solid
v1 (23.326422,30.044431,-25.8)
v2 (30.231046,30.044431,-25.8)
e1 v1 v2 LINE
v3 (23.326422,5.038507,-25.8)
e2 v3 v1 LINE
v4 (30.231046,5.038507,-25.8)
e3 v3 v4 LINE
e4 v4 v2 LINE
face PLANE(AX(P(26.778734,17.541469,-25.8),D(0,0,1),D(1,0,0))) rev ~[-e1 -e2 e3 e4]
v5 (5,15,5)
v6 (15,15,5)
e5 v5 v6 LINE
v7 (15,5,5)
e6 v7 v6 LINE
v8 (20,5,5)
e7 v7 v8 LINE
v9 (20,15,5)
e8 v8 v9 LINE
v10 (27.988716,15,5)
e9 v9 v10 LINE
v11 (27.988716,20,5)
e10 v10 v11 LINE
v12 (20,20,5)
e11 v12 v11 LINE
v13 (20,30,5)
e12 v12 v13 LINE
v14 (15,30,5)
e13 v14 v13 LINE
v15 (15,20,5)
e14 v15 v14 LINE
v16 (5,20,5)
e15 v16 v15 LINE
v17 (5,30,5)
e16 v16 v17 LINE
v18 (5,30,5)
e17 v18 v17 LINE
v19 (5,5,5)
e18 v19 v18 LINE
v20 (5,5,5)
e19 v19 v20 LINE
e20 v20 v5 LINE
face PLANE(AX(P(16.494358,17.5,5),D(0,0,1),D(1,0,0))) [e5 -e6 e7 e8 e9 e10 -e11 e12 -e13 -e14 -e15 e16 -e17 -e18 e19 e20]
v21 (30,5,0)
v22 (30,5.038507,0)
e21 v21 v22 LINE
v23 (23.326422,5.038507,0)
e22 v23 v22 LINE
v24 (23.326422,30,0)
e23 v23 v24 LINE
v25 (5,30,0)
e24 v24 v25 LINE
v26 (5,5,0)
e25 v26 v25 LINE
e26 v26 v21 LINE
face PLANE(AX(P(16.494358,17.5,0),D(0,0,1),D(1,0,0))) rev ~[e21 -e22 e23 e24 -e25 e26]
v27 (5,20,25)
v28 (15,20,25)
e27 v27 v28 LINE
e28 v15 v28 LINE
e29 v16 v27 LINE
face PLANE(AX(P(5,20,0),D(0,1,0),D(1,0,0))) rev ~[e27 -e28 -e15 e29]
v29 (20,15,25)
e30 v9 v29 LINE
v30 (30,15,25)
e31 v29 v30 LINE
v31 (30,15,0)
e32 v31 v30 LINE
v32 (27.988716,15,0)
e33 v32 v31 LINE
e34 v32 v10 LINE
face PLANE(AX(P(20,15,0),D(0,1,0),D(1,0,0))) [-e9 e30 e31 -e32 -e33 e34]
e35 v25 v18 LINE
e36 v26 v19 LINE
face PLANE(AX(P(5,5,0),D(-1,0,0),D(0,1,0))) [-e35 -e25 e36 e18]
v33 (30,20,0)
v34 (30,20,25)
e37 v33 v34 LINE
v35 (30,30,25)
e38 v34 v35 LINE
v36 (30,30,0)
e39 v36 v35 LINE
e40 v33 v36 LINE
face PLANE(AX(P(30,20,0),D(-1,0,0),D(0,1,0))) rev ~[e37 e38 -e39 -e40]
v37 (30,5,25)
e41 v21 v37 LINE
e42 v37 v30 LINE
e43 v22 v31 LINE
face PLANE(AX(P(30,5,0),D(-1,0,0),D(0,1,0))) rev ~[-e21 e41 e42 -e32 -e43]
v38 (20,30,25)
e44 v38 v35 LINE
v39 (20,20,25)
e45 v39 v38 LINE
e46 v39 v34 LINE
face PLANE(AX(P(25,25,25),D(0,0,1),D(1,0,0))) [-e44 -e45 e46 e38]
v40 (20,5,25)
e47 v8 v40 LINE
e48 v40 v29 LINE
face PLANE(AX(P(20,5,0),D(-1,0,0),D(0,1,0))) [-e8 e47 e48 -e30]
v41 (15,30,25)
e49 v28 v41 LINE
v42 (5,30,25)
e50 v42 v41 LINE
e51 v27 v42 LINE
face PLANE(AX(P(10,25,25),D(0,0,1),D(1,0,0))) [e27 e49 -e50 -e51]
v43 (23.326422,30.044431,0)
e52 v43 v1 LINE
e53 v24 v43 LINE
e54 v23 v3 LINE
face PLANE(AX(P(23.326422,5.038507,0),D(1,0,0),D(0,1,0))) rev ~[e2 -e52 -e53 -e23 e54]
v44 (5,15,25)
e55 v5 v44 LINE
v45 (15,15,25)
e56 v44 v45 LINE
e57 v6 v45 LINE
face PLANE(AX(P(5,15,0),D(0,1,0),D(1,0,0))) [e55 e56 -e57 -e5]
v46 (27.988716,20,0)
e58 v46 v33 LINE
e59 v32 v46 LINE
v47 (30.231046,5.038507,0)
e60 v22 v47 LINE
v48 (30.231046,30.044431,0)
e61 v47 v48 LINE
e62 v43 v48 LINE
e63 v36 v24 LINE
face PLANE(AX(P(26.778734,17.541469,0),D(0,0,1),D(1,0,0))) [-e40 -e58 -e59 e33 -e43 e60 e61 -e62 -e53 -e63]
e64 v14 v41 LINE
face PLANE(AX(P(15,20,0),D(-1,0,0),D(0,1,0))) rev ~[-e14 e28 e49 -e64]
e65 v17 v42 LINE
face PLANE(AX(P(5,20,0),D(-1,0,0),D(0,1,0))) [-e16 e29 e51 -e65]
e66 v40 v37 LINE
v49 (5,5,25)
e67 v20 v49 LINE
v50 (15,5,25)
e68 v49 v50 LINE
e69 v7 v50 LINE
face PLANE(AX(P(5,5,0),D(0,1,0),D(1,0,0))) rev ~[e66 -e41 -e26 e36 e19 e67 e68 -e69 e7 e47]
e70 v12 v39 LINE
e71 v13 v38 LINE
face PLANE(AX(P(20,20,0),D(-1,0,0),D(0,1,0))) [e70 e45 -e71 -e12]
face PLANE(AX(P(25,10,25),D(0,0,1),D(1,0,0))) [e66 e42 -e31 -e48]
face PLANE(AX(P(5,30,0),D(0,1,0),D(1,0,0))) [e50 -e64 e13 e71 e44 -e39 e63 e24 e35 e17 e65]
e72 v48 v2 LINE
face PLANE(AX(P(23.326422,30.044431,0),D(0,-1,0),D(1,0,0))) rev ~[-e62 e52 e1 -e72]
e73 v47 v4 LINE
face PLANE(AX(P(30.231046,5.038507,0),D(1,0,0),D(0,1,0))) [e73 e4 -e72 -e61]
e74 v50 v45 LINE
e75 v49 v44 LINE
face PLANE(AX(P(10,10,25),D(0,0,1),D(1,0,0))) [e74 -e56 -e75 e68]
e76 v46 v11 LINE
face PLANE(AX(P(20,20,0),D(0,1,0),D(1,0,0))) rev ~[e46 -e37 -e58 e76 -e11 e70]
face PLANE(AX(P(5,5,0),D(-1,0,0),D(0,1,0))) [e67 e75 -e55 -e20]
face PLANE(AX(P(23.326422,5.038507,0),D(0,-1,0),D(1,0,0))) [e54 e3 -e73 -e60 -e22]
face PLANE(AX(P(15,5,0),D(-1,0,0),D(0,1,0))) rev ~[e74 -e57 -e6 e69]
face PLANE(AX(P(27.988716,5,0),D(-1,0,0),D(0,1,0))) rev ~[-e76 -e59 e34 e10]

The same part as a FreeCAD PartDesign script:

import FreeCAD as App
import Part
import Sketcher

V = App.Vector


def add_polygon(sketch, points):
    """Adds a closed chain of lines whose ends are joined by coincident constraints."""
    first, n = sketch.GeometryCount, len(points)
    for a, b in zip(points, points[1:] + points[:1]):
        sketch.addGeometry(Part.LineSegment(App.Vector(*a, 0), App.Vector(*b, 0)), False)
    for i in range(n):
        sketch.addConstraint(Sketcher.Constraint("Coincident", first + i, 2, first + (i + 1) % n, 1))

doc = App.newDocument("Part")
params = doc.addObject("Spreadsheet::Sheet", "Params")
for row, (alias, value) in enumerate([
    ("sketch1_width", "10 mm"),
    ("pad1_length", "25 mm"),
    ("sketch2_height", "25 mm"),
    ("pad2_length", "5 mm"),
    ("pad3_length", "25.8 mm"),
], start=1):
    params.set(f"A{row}", alias)
    params.set(f"B{row}", "=" + value)
    params.setAlias(f"B{row}", alias)

body = doc.addObject("PartDesign::Body", "Body")
body.AllowCompound = True

sketch1 = body.newObject("Sketcher::SketchObject", "Sketch")
sketch1.AttachmentSupport = (doc.getObject("XY_Plane"), [""])
sketch1.MapMode = "FlatFace"
add_polygon(sketch1, [(5, 30), (5, 20), (15, 20), (15, 30)])
add_polygon(sketch1, [(20, 30), (20, 20), (30, 20), (30, 30)])
add_polygon(sketch1, [(20, 15), (20, 5), (30, 5), (30, 15)])
add_polygon(sketch1, [(5, 15), (5, 5), (15, 5), (15, 15)])
sketch1.addConstraint(Sketcher.Constraint("Vertical", 0))
sketch1.addConstraint(Sketcher.Constraint("Horizontal", 1))
sketch1.addConstraint(Sketcher.Constraint("Vertical", 2))
sketch1.addConstraint(Sketcher.Constraint("Horizontal", 3))
sketch1.addConstraint(Sketcher.Constraint("Vertical", 4))
sketch1.addConstraint(Sketcher.Constraint("Horizontal", 5))
sketch1.addConstraint(Sketcher.Constraint("Vertical", 6))
sketch1.addConstraint(Sketcher.Constraint("Horizontal", 7))
sketch1.addConstraint(Sketcher.Constraint("Vertical", 8))
sketch1.addConstraint(Sketcher.Constraint("Horizontal", 9))
sketch1.addConstraint(Sketcher.Constraint("Vertical", 10))
sketch1.addConstraint(Sketcher.Constraint("Horizontal", 11))
sketch1.addConstraint(Sketcher.Constraint("Vertical", 12))
sketch1.addConstraint(Sketcher.Constraint("Horizontal", 13))
sketch1.addConstraint(Sketcher.Constraint("Vertical", 14))
sketch1.addConstraint(Sketcher.Constraint("Horizontal", 15))
sketch1.addConstraint(Sketcher.Constraint("Horizontal", 1, 2, 4, 2))
sketch1.addConstraint(Sketcher.Constraint("Horizontal", 3, 2, 6, 2))
sketch1.addConstraint(Sketcher.Constraint("Horizontal", 9, 2, 12, 2))
sketch1.addConstraint(Sketcher.Constraint("Horizontal", 11, 2, 14, 2))
sketch1.addConstraint(Sketcher.Constraint("Vertical", 7, 2, 8, 2))
sketch1.addConstraint(Sketcher.Constraint("Vertical", 6, 2, 9, 2))
sketch1.addConstraint(Sketcher.Constraint("Vertical", 3, 2, 12, 2))
sketch1.addConstraint(Sketcher.Constraint("Vertical", 2, 2, 13, 2))
sketch1.addConstraint(Sketcher.Constraint("Equal", 3, 5))
sketch1.addConstraint(Sketcher.Constraint("Equal", 15, 0))
sketch1.addConstraint(Sketcher.Constraint("Equal", 6, 8))
sketch1.addConstraint(Sketcher.Constraint("DistanceX", 1, 1, 1, 2, 10.0))
sketch1.addConstraint(Sketcher.Constraint("DistanceX", -1, 1, 0, 2, 5.0))
sketch1.addConstraint(Sketcher.Constraint("DistanceY", -1, 1, 0, 2, 20.0))
sketch1.addConstraint(Sketcher.Constraint("DistanceX", -1, 1, 4, 2, 20.0))
sketch1.addConstraint(Sketcher.Constraint("DistanceY", -1, 1, 8, 2, 5.0))
sketch1.setExpression("Constraints[43]", "Params.sketch1_width")
pad1 = body.newObject("PartDesign::Pad", "Pad")
pad1.Profile = sketch1
pad1.setExpression("Length", "Params.pad1_length")

sketch2 = body.newObject("Sketcher::SketchObject", "Sketch001")
sketch2.AttachmentSupport = (doc.getObject("XY_Plane"), [""])
sketch2.MapMode = "FlatFace"
add_polygon(sketch2, [(5, 30), (5, 5), (28, 5), (28, 30)])
sketch2.addConstraint(Sketcher.Constraint("Vertical", 0))
sketch2.addConstraint(Sketcher.Constraint("Horizontal", 1))
sketch2.addConstraint(Sketcher.Constraint("Vertical", 2))
sketch2.addConstraint(Sketcher.Constraint("Horizontal", 3))
sketch2.addConstraint(Sketcher.Constraint("DistanceY", 0, 2, 0, 1, 25.0))
sketch2.addConstraint(Sketcher.Constraint("DistanceX", -1, 1, 0, 2, 5.0))
sketch2.addConstraint(Sketcher.Constraint("DistanceY", -1, 1, 0, 2, 5.0))
sketch2.addConstraint(Sketcher.Constraint("DistanceX", 1, 1, 1, 2, 22.988717))
sketch2.setExpression("Constraints[8]", "Params.sketch2_height")
pad2 = body.newObject("PartDesign::Pad", "Pad001")
pad2.Profile = sketch2
pad2.setExpression("Length", "Params.pad2_length")

sketch3 = body.newObject("Sketcher::SketchObject", "Sketch002")
sketch3.AttachmentSupport = (doc.getObject("XY_Plane"), [""])
sketch3.MapMode = "FlatFace"
add_polygon(sketch3, [(23, 30), (23, 5), (30, 5), (30, 30)])
sketch3.addConstraint(Sketcher.Constraint("Vertical", 0))
sketch3.addConstraint(Sketcher.Constraint("Horizontal", 1))
sketch3.addConstraint(Sketcher.Constraint("Vertical", 2))
sketch3.addConstraint(Sketcher.Constraint("Horizontal", 3))
sketch3.addConstraint(Sketcher.Constraint("DistanceX", 1, 1, 1, 2, 6.904623))
sketch3.addConstraint(Sketcher.Constraint("DistanceY", 0, 2, 0, 1, 25.005924))
sketch3.addConstraint(Sketcher.Constraint("DistanceY", -1, 1, 2, 2, 30.044431))
sketch3.addConstraint(Sketcher.Constraint("DistanceX", -1, 1, 0, 2, 23.326422))
pad3 = body.newObject("PartDesign::Pad", "Pad002")
pad3.Profile = sketch3
pad3.setExpression("Length", "Params.pad3_length")
pad3.Reversed = True

doc.recompute()
